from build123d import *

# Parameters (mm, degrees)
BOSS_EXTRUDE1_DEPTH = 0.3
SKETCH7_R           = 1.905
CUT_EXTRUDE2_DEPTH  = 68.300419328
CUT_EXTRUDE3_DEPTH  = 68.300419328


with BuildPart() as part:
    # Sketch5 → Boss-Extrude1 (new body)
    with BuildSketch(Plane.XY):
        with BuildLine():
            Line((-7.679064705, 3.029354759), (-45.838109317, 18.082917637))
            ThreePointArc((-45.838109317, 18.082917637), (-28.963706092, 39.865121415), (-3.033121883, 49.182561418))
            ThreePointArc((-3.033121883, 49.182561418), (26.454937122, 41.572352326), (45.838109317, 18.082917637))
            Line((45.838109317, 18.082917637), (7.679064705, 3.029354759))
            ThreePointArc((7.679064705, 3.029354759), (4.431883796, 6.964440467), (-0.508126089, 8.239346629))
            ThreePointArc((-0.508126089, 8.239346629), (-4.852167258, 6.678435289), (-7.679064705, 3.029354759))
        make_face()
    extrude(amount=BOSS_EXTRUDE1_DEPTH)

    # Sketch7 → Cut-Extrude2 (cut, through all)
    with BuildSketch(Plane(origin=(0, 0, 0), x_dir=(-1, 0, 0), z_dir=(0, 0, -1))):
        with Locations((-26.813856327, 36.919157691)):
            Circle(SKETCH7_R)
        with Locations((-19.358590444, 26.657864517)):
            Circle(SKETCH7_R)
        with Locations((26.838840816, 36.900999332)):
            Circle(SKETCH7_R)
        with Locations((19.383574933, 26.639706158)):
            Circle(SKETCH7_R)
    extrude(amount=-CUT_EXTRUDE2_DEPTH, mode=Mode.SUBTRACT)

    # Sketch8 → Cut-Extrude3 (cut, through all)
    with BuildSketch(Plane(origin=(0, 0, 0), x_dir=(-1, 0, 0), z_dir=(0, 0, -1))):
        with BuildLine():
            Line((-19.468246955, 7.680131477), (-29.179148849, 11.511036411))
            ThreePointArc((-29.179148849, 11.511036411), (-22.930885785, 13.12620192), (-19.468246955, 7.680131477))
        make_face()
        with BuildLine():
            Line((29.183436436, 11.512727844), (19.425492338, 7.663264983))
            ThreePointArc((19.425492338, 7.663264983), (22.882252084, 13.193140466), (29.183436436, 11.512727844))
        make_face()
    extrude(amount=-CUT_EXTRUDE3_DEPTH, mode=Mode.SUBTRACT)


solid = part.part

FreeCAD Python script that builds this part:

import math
import FreeCAD as App
import Part
import Sketcher
Q = App.Units.Quantity

doc = App.newDocument("Part")
params = doc.addObject("Spreadsheet::Sheet", "Params")
for row, (alias, value) in enumerate([
    ("sketch1_radius", "1.94 in"),
    ("sketch1_radius2", "0.325 in"),
    ("pad1_length", "0.3 mm"),
    ("sketch2_diameter", "0.15 in"),
], start=1):
    params.set(f"A{row}", alias)
    params.set(f"B{row}", "=" + value)
    params.setAlias(f"B{row}", alias)

body = doc.addObject("PartDesign::Body", "Body")

# Sketch on XY plane
sketch1 = body.newObject("Sketcher::SketchObject", "Sketch")
sketch1.AttachmentSupport = (doc.getObject("XY_Plane"), [""])
sketch1.MapMode = "FlatFace"
sketch1.addGeometry([
    Part.LineSegment(App.Vector(-45.838109, 18.082918, 0), App.Vector(-7.679065, 3.029355, 0)),  # 0
    Part.ArcOfCircle(Part.Circle(App.Vector(0, 0, 0), App.Vector(0, 0, 1), 8.255), math.radians(93.529), math.radians(158.471)),  # 1
    Part.ArcOfCircle(Part.Circle(App.Vector(0, 0, 0), App.Vector(0, 0, 1), 8.255), math.radians(21.529), math.radians(93.529)),  # 2
    Part.LineSegment(App.Vector(7.679065, 3.029355, 0), App.Vector(45.838109, 18.082918, 0)),  # 3
    Part.ArcOfCircle(Part.Circle(App.Vector(0, 0, 0), App.Vector(0, 0, 1), 49.276), math.radians(21.529), math.radians(93.529)),  # 4
    Part.ArcOfCircle(Part.Circle(App.Vector(0, 0, 0), App.Vector(0, 0, 1), 49.276), math.radians(93.529), math.radians(158.471)),  # 5
], False)
sketch1.addConstraint([
    Sketcher.Constraint("Coincident", 0, 2, 1, 2),
    Sketcher.Constraint("Tangent", 1, 1, 2, 2),
    Sketcher.Constraint("Coincident", 2, 1, 3, 1),
    Sketcher.Constraint("Coincident", 3, 2, 4, 1),
    Sketcher.Constraint("Tangent", 4, 2, 5, 1),
    Sketcher.Constraint("Coincident", 5, 2, 0, 1),
    Sketcher.Constraint("Coincident", 1, 3, -1, 1),
    Sketcher.Constraint("Coincident", 4, 3, -1, 1),
    Sketcher.Constraint("Equal", 1, 2),
    Sketcher.Constraint("Equal", 4, 5),
    Sketcher.Constraint("Horizontal", 0, 2, 2, 1),
    Sketcher.Constraint("Horizontal", 3, 2, 5, 2),
    Sketcher.Constraint("Radius", 4, Q("1.94 in")),
    Sketcher.Constraint("Radius", 1, Q("0.325 in")),
    Sketcher.Constraint("DistanceX", -1, 1, 3, 2, Q("45.838109 mm")),
    Sketcher.Constraint("DistanceX", 4, 2, -1, 1, Q("3.033122 mm")),
    Sketcher.Constraint("DistanceX", 0, 2, 1, 1, Q("7.170939 mm")),
    Sketcher.Constraint("DistanceY", 0, 2, 1, 1, Q("5.209992 mm")),
])
sketch1.setExpression("Constraints[12]", "Params.sketch1_radius")
sketch1.setExpression("Constraints[13]", "Params.sketch1_radius2")
pad1 = body.newObject("PartDesign::Pad", "Pad")
pad1.Profile = sketch1
pad1.setExpression("Length", "Params.pad1_length")

# Sketch on XY plane
sketch2 = body.newObject("Sketcher::SketchObject", "Sketch001")
sketch2.AttachmentSupport = (doc.getObject("XY_Plane"), [""])
sketch2.MapMode = "FlatFace"
sketch2.addGeometry([
    Part.Circle(App.Vector(26.813856, 36.919158, 0), App.Vector(0, 0, 1), 1.905),
    Part.Circle(App.Vector(19.35859, 26.657865, 0), App.Vector(0, 0, 1), 1.905),
    Part.Circle(App.Vector(-26.838841, 36.900999, 0), App.Vector(0, 0, 1), 1.905),
    Part.Circle(App.Vector(-19.383575, 26.639706, 0), App.Vector(0, 0, 1), 1.905),
], False)
sketch2.addConstraint([
    Sketcher.Constraint("Equal", 0, 1),
    Sketcher.Constraint("Equal", 1, 2),
    Sketcher.Constraint("Equal", 2, 3),
    Sketcher.Constraint("Diameter", 0, Q("0.15 in")),
    Sketcher.Constraint("DistanceY", -1, 1, 2, 3, Q("36.900999 mm")),
    Sketcher.Constraint("DistanceX", -1, 1, 1, 3, Q("19.35859 mm")),
    Sketcher.Constraint("DistanceX", 2, 3, -1, 1, Q("26.838841 mm")),
    Sketcher.Constraint("DistanceY", 2, 3, 0, 3, Q("0.018158 mm")),
    Sketcher.Constraint("DistanceY", 3, 3, 1, 3, Q("0.018158 mm")),
    Sketcher.Constraint("DistanceX", 3, 3, 0, 3, Q("46.197431 mm")),
    Sketcher.Constraint("DistanceY", 3, 3, 0, 3, Q("10.279452 mm")),
    Sketcher.Constraint("DistanceX", -1, 1, 0, 3, Q("26.813856 mm")),
])
sketch2.setExpression("Constraints[3]", "Params.sketch2_diameter")
pocket1 = body.newObject("PartDesign::Pocket", "Pocket")
pocket1.Profile = sketch2
pocket1.Type = "ThroughAll"
pocket1.Reversed = True

# Sketch on XY plane
sketch3 = body.newObject("Sketcher::SketchObject", "Sketch002")
sketch3.AttachmentSupport = (doc.getObject("XY_Plane"), [""])
sketch3.MapMode = "FlatFace"
sketch3.addGeometry([
    Part.LineSegment(App.Vector(29.179149, 11.511036, 0), App.Vector(19.468247, 7.680131, 0)),
    Part.ArcOfCircle(Part.Circle(App.Vector(24.944396, 8.022185, 0), App.Vector(0, 0, 1), 5.486822), math.radians(39.48381), math.radians(183.57419)),
    Part.LineSegment(App.Vector(-19.425492, 7.663265, 0), App.Vector(-29.183436, 11.512728, 0)),
    Part.ArcOfCircle(Part.Circle(App.Vector(-24.895763, 8.089124, 0), App.Vector(0, 0, 1), 5.486822), math.radians(-4.451478), math.radians(141.393478)),
], False)
sketch3.addConstraint([
    Sketcher.Constraint("Coincident", 0, 1, 1, 1),
    Sketcher.Constraint("Coincident", 1, 2, 0, 2),
    Sketcher.Constraint("Coincident", 2, 1, 3, 1),
    Sketcher.Constraint("Coincident", 3, 2, 2, 2),
    Sketcher.Constraint("Equal", 1, 3),
    Sketcher.Constraint("Radius", 1, Q("5.486822 mm")),
    Sketcher.Constraint("DistanceX", 1, 2, 0, 1, Q("9.710902 mm")),
    Sketcher.Constraint("DistanceX", -1, 1, 0, 1, Q("29.179149 mm")),
    Sketcher.Constraint("DistanceY", -1, 1, 1, 2, Q("7.680131 mm")),
    Sketcher.Constraint("DistanceX", 3, 3, 1, 3, Q("49.840159 mm")),
    Sketcher.Constraint("DistanceY", 1, 3, 3, 3, Q("0.066939 mm")),
    Sketcher.Constraint("DistanceY", 1, 3, 0, 1, Q("3.488851 mm")),
    Sketcher.Constraint("DistanceX", 3, 3, 2, 1, Q("5.47027 mm")),
    Sketcher.Constraint("DistanceY", 0, 1, 3, 2, Q("0.001691 mm")),
])
pocket2 = body.newObject("PartDesign::Pocket", "Pocket001")
pocket2.Profile = sketch3
pocket2.Type = "ThroughAll"
pocket2.Reversed = True

doc.recompute()
